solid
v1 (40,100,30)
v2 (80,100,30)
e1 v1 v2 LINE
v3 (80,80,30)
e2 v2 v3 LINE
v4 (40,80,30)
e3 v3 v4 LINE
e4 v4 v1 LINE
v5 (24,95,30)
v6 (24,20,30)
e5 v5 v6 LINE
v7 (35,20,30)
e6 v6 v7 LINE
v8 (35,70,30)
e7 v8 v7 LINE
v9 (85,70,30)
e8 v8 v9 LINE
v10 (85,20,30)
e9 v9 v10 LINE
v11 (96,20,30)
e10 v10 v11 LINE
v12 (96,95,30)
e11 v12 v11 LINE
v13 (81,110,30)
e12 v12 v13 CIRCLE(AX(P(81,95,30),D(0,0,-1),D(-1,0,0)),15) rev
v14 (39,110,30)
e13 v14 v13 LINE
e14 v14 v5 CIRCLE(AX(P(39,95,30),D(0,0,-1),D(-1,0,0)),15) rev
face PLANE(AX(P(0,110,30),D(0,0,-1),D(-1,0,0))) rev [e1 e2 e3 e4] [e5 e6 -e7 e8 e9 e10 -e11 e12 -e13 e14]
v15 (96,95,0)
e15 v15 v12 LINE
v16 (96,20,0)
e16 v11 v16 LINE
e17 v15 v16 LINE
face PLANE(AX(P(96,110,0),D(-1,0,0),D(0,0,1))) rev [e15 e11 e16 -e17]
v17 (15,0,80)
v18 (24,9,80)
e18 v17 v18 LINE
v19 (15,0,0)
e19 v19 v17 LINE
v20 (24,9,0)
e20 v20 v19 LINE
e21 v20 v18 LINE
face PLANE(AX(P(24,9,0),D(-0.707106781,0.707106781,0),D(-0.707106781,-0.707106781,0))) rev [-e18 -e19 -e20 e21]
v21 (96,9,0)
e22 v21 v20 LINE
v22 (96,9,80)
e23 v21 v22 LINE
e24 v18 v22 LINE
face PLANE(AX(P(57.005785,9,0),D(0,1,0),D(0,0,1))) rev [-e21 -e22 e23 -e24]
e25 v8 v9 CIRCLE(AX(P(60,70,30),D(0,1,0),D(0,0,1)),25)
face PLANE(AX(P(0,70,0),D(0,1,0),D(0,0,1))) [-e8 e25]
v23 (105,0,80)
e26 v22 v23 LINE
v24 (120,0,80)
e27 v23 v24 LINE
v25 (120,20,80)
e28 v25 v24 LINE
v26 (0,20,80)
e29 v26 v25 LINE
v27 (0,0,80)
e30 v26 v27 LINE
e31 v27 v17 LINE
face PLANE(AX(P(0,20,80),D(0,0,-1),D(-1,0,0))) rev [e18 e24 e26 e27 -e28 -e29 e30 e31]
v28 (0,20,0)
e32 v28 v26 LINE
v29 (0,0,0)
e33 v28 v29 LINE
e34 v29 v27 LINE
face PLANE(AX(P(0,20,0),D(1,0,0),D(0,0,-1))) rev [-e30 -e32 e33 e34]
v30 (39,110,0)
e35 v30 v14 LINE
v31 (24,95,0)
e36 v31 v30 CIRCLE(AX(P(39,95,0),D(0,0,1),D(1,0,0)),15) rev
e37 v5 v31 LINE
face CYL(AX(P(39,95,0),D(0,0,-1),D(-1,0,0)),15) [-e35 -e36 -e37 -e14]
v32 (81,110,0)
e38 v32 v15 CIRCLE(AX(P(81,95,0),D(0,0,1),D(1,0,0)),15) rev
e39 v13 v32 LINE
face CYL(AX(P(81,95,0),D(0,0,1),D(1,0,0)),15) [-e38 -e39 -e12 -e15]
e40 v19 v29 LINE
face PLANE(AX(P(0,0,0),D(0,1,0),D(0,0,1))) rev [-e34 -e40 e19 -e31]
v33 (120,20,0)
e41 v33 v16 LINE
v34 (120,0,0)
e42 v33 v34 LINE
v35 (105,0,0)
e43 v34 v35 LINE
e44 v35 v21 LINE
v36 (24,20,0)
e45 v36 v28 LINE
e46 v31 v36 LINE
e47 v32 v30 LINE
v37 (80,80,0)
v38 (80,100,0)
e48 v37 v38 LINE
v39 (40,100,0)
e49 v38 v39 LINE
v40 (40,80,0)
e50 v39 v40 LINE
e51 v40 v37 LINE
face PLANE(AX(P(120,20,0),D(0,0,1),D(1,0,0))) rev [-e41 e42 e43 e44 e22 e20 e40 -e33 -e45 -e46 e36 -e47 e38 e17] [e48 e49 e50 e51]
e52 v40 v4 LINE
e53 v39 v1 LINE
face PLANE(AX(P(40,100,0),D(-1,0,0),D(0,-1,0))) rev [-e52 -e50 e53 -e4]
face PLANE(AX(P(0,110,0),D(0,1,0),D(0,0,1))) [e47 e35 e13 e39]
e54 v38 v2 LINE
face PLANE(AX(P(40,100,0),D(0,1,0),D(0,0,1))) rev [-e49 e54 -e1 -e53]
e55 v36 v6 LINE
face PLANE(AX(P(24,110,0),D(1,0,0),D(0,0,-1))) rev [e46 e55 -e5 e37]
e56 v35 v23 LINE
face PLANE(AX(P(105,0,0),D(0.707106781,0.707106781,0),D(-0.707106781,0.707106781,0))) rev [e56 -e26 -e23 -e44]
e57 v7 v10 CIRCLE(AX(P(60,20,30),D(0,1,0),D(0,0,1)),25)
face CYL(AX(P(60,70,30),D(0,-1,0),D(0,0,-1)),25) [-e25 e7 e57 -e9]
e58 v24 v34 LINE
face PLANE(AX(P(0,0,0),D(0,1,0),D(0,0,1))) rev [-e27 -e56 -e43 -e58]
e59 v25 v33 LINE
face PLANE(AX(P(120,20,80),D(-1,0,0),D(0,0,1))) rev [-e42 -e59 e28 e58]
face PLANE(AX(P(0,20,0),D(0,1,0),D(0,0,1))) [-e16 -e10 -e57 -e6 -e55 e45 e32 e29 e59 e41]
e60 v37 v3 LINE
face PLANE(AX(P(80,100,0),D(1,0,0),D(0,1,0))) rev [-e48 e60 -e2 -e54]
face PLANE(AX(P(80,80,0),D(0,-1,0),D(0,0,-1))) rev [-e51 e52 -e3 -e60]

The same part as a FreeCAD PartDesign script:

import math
import FreeCAD as App
import Part
import Sketcher


def edges_at(feature, points):
    """Names of the edges that pass closest to the given points."""
    edges = feature.Shape.Edges
    near = lambda p: min(range(len(edges)), key=lambda i: edges[i].distToShape(Part.Vertex(*p))[0])
    return sorted({f"Edge{near(p) + 1}" for p in points})


def add_polygon(sketch, points):
    """Adds a closed chain of lines whose ends are joined by coincident constraints."""
    first, n = sketch.GeometryCount, len(points)
    for a, b in zip(points, points[1:] + points[:1]):
        sketch.addGeometry(Part.LineSegment(App.Vector(*a, 0), App.Vector(*b, 0)), False)
    for i in range(n):
        sketch.addConstraint(Sketcher.Constraint("Coincident", first + i, 2, first + (i + 1) % n, 1))

doc = App.newDocument("Part")
body = doc.addObject("PartDesign::Body", "Body")

# Sketch on XZ plane
sketch1 = body.newObject("Sketcher::SketchObject", "Sketch")
sketch1.AttachmentSupport = (doc.getObject("XZ_Plane"), [""])
sketch1.MapMode = "FlatFace"
add_polygon(sketch1, [(0, 0), (0, 80), (120, 80), (120, 0)])  # lines 0-3
sketch1.addConstraint([
    Sketcher.Constraint("Vertical", 0),
    Sketcher.Constraint("Horizontal", 1),
    Sketcher.Constraint("Vertical", 2),
    Sketcher.Constraint("Horizontal", 3),
    Sketcher.Constraint("Coincident", 3, 2, -1, 1),
    Sketcher.Constraint("DistanceX", 1, 1, 1, 2, 120.0),
    Sketcher.Constraint("DistanceY", 0, 1, 0, 2, 80.0),
])
pad1 = body.newObject("PartDesign::Pad", "Pad")
pad1.Profile = sketch1
pad1.Length = 20
pad1.Reversed = True

# Sketch on XY plane
sketch2 = body.newObject("Sketcher::SketchObject", "Sketch001")
sketch2.AttachmentSupport = (doc.getObject("XY_Plane"), [""])
sketch2.MapMode = "FlatFace"
sketch2.AttachmentOffset = App.Placement(App.Vector(0, 0, 80), App.Rotation())
add_polygon(sketch2, [(105, 0), (96, 9), (24, 9), (15, 0)])  # lines 0-3
sketch2.addConstraint([
    Sketcher.Constraint("Horizontal", 1),
    Sketcher.Constraint("Horizontal", 3),
    Sketcher.Constraint("PointOnObject", 2, 2, -1),
    Sketcher.Constraint("Perpendicular", 0, 2),
    Sketcher.Constraint("Equal", 0, 2),
    Sketcher.Constraint("DistanceX", 1, 2, 1, 1, 72.0),
    Sketcher.Constraint("DistanceX", 3, 1, 3, 2, 90.0),
    Sketcher.Constraint("DistanceX", -1, 1, 0, 2, 96.0),
])
pocket1 = body.newObject("PartDesign::Pocket", "Pocket")
pocket1.Profile = sketch2
pocket1.Type = "ThroughAll"
pocket1.Midplane = True

# Sketch on XZ plane
sketch3 = body.newObject("Sketcher::SketchObject", "Sketch002")
sketch3.AttachmentSupport = (doc.getObject("XZ_Plane"), [""])
sketch3.MapMode = "FlatFace"
sketch3.AttachmentOffset = App.Placement(App.Vector(0, 0, -20), App.Rotation())
add_polygon(sketch3, [(24, 0), (24, 30), (96, 30), (96, 0)])  # lines 0-3
sketch3.addConstraint([
    Sketcher.Constraint("Vertical", 0),
    Sketcher.Constraint("Horizontal", 1),
    Sketcher.Constraint("Vertical", 2),
    Sketcher.Constraint("Horizontal", 3),
    Sketcher.Constraint("PointOnObject", 2, 2, -1),
    Sketcher.Constraint("DistanceX", 1, 1, 1, 2, 72.0),
    Sketcher.Constraint("DistanceY", 0, 1, 0, 2, 30.0),
    Sketcher.Constraint("DistanceX", -1, 1, 0, 2, 24.0),
])
pad2 = body.newObject("PartDesign::Pad", "Pad001")
pad2.Profile = sketch3
pad2.Length = 90
pad2.Reversed = True

# Sketch on XZ plane
sketch4 = body.newObject("Sketcher::SketchObject", "Sketch003")
sketch4.AttachmentSupport = (doc.getObject("XZ_Plane"), [""])
sketch4.MapMode = "FlatFace"
sketch4.AttachmentOffset = App.Placement(App.Vector(0, 0, -20), App.Rotation())
sketch4.addGeometry([
    Part.ArcOfCircle(Part.Circle(App.Vector(60, 30, 0), App.Vector(0, 0, 1), 25), math.radians(0), math.radians(180)),
    Part.LineSegment(App.Vector(85, 30, 0), App.Vector(35, 30, 0)),
], False)
sketch4.addConstraint([
    Sketcher.Constraint("Coincident", 0, 1, 1, 1),
    Sketcher.Constraint("Coincident", 1, 2, 0, 2),
    Sketcher.Constraint("Horizontal", 1),
    Sketcher.Constraint("Radius", 0, 25.0),
    Sketcher.Constraint("DistanceX", -1, 1, 0, 3, 60.0),
    Sketcher.Constraint("DistanceY", -1, 1, 0, 3, 30.0),
    Sketcher.Constraint("DistanceY", -1, 1, 0, 1, 30.0),
])
pad3 = body.newObject("PartDesign::Pad", "Pad002")
pad3.Profile = sketch4
pad3.Length = 50
pad3.Reversed = True
doc.recompute()

fillet = body.newObject("PartDesign::Fillet", "Fillet")
fillet.Base = (pad3, edges_at(pad3, [(96, 110, 15), (24, 110, 15)]))
fillet.Radius = 15

# Sketch on XY plane
sketch5 = body.newObject("Sketcher::SketchObject", "Sketch004")
sketch5.AttachmentSupport = (doc.getObject("XY_Plane"), [""])
sketch5.MapMode = "FlatFace"
sketch5.AttachmentOffset = App.Placement(App.Vector(0, 0, 30), App.Rotation())
add_polygon(sketch5, [(40, 100), (40, 80), (80, 80), (80, 100)])  # lines 0-3
sketch5.addConstraint([
    Sketcher.Constraint("Vertical", 0),
    Sketcher.Constraint("Horizontal", 1),
    Sketcher.Constraint("Vertical", 2),
    Sketcher.Constraint("Horizontal", 3),
    Sketcher.Constraint("DistanceX", 1, 1, 1, 2, 40.0),
    Sketcher.Constraint("DistanceY", 0, 2, 0, 1, 20.0),
    Sketcher.Constraint("DistanceX", -1, 1, 0, 2, 40.0),
    Sketcher.Constraint("DistanceY", -1, 1, 0, 2, 80.0),
])
pocket2 = body.newObject("PartDesign::Pocket", "Pocket001")
pocket2.Profile = sketch5
pocket2.Type = "ThroughAll"
pocket2.Midplane = True

doc.recompute()
